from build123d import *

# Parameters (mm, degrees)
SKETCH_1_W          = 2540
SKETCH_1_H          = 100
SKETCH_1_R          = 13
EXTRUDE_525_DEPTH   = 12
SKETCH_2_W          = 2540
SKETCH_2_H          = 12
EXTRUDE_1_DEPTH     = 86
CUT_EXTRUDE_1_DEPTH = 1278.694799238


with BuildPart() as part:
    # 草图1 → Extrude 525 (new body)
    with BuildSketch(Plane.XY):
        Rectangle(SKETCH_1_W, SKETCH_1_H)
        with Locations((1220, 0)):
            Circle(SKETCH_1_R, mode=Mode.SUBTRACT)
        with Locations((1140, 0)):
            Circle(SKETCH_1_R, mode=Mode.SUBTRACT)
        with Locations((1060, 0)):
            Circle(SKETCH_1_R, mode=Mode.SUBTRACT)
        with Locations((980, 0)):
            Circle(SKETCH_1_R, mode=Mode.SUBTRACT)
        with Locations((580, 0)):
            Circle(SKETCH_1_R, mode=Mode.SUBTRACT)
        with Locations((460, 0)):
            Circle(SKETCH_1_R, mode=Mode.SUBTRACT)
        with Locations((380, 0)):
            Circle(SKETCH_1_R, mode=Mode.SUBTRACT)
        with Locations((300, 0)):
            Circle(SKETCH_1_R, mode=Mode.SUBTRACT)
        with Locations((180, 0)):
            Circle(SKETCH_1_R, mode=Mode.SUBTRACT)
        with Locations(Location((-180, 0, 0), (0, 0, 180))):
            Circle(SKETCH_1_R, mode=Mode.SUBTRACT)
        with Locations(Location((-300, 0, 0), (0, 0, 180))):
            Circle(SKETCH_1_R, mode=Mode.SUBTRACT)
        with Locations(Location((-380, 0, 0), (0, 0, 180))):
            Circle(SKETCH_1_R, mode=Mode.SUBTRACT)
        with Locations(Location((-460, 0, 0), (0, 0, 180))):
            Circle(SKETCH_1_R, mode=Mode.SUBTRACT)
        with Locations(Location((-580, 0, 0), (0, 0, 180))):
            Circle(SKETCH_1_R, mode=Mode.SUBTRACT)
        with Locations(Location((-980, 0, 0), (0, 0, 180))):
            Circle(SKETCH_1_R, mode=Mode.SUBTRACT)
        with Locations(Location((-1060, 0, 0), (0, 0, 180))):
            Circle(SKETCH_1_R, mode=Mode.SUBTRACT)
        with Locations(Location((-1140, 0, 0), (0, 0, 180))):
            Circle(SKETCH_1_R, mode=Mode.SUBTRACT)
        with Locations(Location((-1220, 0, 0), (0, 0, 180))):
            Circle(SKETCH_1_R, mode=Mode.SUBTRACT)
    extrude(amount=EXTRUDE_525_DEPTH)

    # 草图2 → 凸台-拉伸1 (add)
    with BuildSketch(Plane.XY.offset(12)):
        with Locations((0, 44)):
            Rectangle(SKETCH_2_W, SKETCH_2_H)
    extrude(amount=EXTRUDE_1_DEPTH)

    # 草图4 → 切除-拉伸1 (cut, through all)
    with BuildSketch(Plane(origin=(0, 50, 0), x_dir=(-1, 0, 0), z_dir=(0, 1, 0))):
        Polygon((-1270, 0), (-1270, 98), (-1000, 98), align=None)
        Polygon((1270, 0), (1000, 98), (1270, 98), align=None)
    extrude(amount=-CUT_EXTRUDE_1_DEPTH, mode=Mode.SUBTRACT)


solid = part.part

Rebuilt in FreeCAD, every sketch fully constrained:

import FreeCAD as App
import Part
import Sketcher

V = App.Vector


def add_polygon(sketch, points):
    """Adds a closed chain of lines whose ends are joined by coincident constraints."""
    first, n = sketch.GeometryCount, len(points)
    for a, b in zip(points, points[1:] + points[:1]):
        sketch.addGeometry(Part.LineSegment(App.Vector(*a, 0), App.Vector(*b, 0)), False)
    for i in range(n):
        sketch.addConstraint(Sketcher.Constraint("Coincident", first + i, 2, first + (i + 1) % n, 1))

doc = App.newDocument("Part")
body = doc.addObject("PartDesign::Body", "Body")

sketch1 = body.newObject("Sketcher::SketchObject", "Sketch")
sketch1.AttachmentSupport = (doc.getObject("XY_Plane"), [""])
sketch1.MapMode = "FlatFace"
add_polygon(sketch1, [(-1270, 50), (-1270, -50), (1270, -50), (1270, 50)])
sketch1.addGeometry(Part.Circle(V(-1220, 0, 0), V(0, 0, 1), 13), False)
sketch1.addGeometry(Part.Circle(V(-1140, 0, 0), V(0, 0, 1), 13), False)
sketch1.addGeometry(Part.Circle(V(-1060, 0, 0), V(0, 0, 1), 13), False)
sketch1.addGeometry(Part.Circle(V(-980, 0, 0), V(0, 0, 1), 13), False)
sketch1.addGeometry(Part.Circle(V(-580, 0, 0), V(0, 0, 1), 13), False)
sketch1.addGeometry(Part.Circle(V(-460, 0, 0), V(0, 0, 1), 13), False)
sketch1.addGeometry(Part.Circle(V(-380, 0, 0), V(0, 0, 1), 13), False)
sketch1.addGeometry(Part.Circle(V(-300, 0, 0), V(0, 0, 1), 13), False)
sketch1.addGeometry(Part.Circle(V(-180, 0, 0), V(0, 0, 1), 13), False)
sketch1.addGeometry(Part.Circle(V(180, 0, 0), V(0, 0, 1), 13), False)
sketch1.addGeometry(Part.Circle(V(300, 0, 0), V(0, 0, 1), 13), False)
sketch1.addGeometry(Part.Circle(V(380, 0, 0), V(0, 0, 1), 13), False)
sketch1.addGeometry(Part.Circle(V(460, 0, 0), V(0, 0, 1), 13), False)
sketch1.addGeometry(Part.Circle(V(580, 0, 0), V(0, 0, 1), 13), False)
sketch1.addGeometry(Part.Circle(V(980, 0, 0), V(0, 0, 1), 13), False)
sketch1.addGeometry(Part.Circle(V(1060, 0, 0), V(0, 0, 1), 13), False)
sketch1.addGeometry(Part.Circle(V(1140, 0, 0), V(0, 0, 1), 13), False)
sketch1.addGeometry(Part.Circle(V(1220, 0, 0), V(0, 0, 1), 13), False)
sketch1.addConstraint(Sketcher.Constraint("Vertical", 0))
sketch1.addConstraint(Sketcher.Constraint("Horizontal", 1))
sketch1.addConstraint(Sketcher.Constraint("Vertical", 2))
sketch1.addConstraint(Sketcher.Constraint("Horizontal", 3))
sketch1.addConstraint(Sketcher.Constraint("Equal", 4, 5))
sketch1.addConstraint(Sketcher.Constraint("Equal", 5, 6))
sketch1.addConstraint(Sketcher.Constraint("Equal", 6, 7))
sketch1.addConstraint(Sketcher.Constraint("Equal", 7, 8))
sketch1.addConstraint(Sketcher.Constraint("Equal", 8, 9))
sketch1.addConstraint(Sketcher.Constraint("Equal", 9, 10))
sketch1.addConstraint(Sketcher.Constraint("Equal", 10, 11))
sketch1.addConstraint(Sketcher.Constraint("Equal", 11, 12))
sketch1.addConstraint(Sketcher.Constraint("Equal", 12, 13))
sketch1.addConstraint(Sketcher.Constraint("Equal", 13, 14))
sketch1.addConstraint(Sketcher.Constraint("Equal", 14, 15))
sketch1.addConstraint(Sketcher.Constraint("Equal", 15, 16))
sketch1.addConstraint(Sketcher.Constraint("Equal", 16, 17))
sketch1.addConstraint(Sketcher.Constraint("Equal", 17, 18))
sketch1.addConstraint(Sketcher.Constraint("Equal", 18, 19))
sketch1.addConstraint(Sketcher.Constraint("Equal", 19, 20))
sketch1.addConstraint(Sketcher.Constraint("Equal", 20, 21))
sketch1.addConstraint(Sketcher.Constraint("Symmetric", 12, 3, 13, 3, -1, 1))
sketch1.addConstraint(Sketcher.Constraint("Symmetric", 11, 3, 14, 3, -1, 1))
sketch1.addConstraint(Sketcher.Constraint("Symmetric", 10, 3, 15, 3, -1, 1))
sketch1.addConstraint(Sketcher.Constraint("Symmetric", 9, 3, 16, 3, -1, 1))
sketch1.addConstraint(Sketcher.Constraint("Symmetric", 8, 3, 17, 3, -1, 1))
sketch1.addConstraint(Sketcher.Constraint("Symmetric", 7, 3, 18, 3, -1, 1))
sketch1.addConstraint(Sketcher.Constraint("Symmetric", 6, 3, 19, 3, -1, 1))
sketch1.addConstraint(Sketcher.Constraint("Symmetric", 5, 3, 20, 3, -1, 1))
sketch1.addConstraint(Sketcher.Constraint("Symmetric", 4, 3, 21, 3, -1, 1))
sketch1.addConstraint(Sketcher.Constraint("Symmetric", 0, 2, 2, 2, -1, 1))
sketch1.addConstraint(Sketcher.Constraint("PointOnObject", 4, 3, -1))
sketch1.addConstraint(Sketcher.Constraint("PointOnObject", 5, 3, -1))
sketch1.addConstraint(Sketcher.Constraint("PointOnObject", 6, 3, -1))
sketch1.addConstraint(Sketcher.Constraint("PointOnObject", 7, 3, -1))
sketch1.addConstraint(Sketcher.Constraint("PointOnObject", 8, 3, -1))
sketch1.addConstraint(Sketcher.Constraint("PointOnObject", 9, 3, -1))
sketch1.addConstraint(Sketcher.Constraint("PointOnObject", 10, 3, -1))
sketch1.addConstraint(Sketcher.Constraint("PointOnObject", 11, 3, -1))
sketch1.addConstraint(Sketcher.Constraint("PointOnObject", 12, 3, -1))
sketch1.addConstraint(Sketcher.Constraint("Diameter", 4, 26.0))
sketch1.addConstraint(Sketcher.Constraint("DistanceX", 1, 1, 1, 2, 2540.0))
sketch1.addConstraint(Sketcher.Constraint("DistanceY", 0, 2, 0, 1, 100.0))
sketch1.addConstraint(Sketcher.Constraint("DistanceX", 4, 3, -1, 1, 1220.0))
sketch1.addConstraint(Sketcher.Constraint("DistanceX", 5, 3, -1, 1, 1140.0))
sketch1.addConstraint(Sketcher.Constraint("DistanceX", 6, 3, -1, 1, 1060.0))
sketch1.addConstraint(Sketcher.Constraint("DistanceX", 7, 3, -1, 1, 980.0))
sketch1.addConstraint(Sketcher.Constraint("DistanceX", 8, 3, -1, 1, 580.0))
sketch1.addConstraint(Sketcher.Constraint("DistanceX", 9, 3, -1, 1, 460.0))
sketch1.addConstraint(Sketcher.Constraint("DistanceX", 10, 3, -1, 1, 380.0))
sketch1.addConstraint(Sketcher.Constraint("DistanceX", 11, 3, -1, 1, 300.0))
sketch1.addConstraint(Sketcher.Constraint("DistanceX", 12, 3, -1, 1, 180.0))
pad1 = body.newObject("PartDesign::Pad", "Pad")
pad1.Profile = sketch1
pad1.Length = 12

sketch2 = body.newObject("Sketcher::SketchObject", "Sketch001")
sketch2.AttachmentSupport = (doc.getObject("XY_Plane"), [""])
sketch2.MapMode = "FlatFace"
sketch2.AttachmentOffset = App.Placement(V(0, 0, 12), App.Rotation())
add_polygon(sketch2, [(-1270, 50), (-1270, 38), (1270, 38), (1270, 50)])
sketch2.addConstraint(Sketcher.Constraint("Vertical", 0))
sketch2.addConstraint(Sketcher.Constraint("Horizontal", 1))
sketch2.addConstraint(Sketcher.Constraint("Vertical", 2))
sketch2.addConstraint(Sketcher.Constraint("Horizontal", 3))
sketch2.addConstraint(Sketcher.Constraint("DistanceX", 1, 1, 1, 2, 2540.0))
sketch2.addConstraint(Sketcher.Constraint("DistanceY", 0, 2, 0, 1, 12.0))
sketch2.addConstraint(Sketcher.Constraint("DistanceX", 0, 2, -1, 1, 1270.0))
sketch2.addConstraint(Sketcher.Constraint("DistanceY", -1, 1, 0, 2, 38.0))
pad2 = body.newObject("PartDesign::Pad", "Pad001")
pad2.Profile = sketch2
pad2.Length = 86

sketch3 = body.newObject("Sketcher::SketchObject", "Sketch002")
sketch3.AttachmentSupport = (doc.getObject("XZ_Plane"), [""])
sketch3.MapMode = "FlatFace"
sketch3.AttachmentOffset = App.Placement(V(0, 0, -50), App.Rotation())
add_polygon(sketch3, [(1270, 98), (1270, 0), (1000, 98)])
add_polygon(sketch3, [(-1000, 98), (-1270, 0), (-1270, 98)])
sketch3.addConstraint(Sketcher.Constraint("Vertical", 0))
sketch3.addConstraint(Sketcher.Constraint("Horizontal", 2))
sketch3.addConstraint(Sketcher.Constraint("Vertical", 4))
sketch3.addConstraint(Sketcher.Constraint("Horizontal", 5))
sketch3.addConstraint(Sketcher.Constraint("Symmetric", 0, 2, 3, 2, -1, 1))
sketch3.addConstraint(Sketcher.Constraint("Symmetric", 1, 2, 5, 2, -2))
sketch3.addConstraint(Sketcher.Constraint("PointOnObject", 0, 2, -1))
sketch3.addConstraint(Sketcher.Constraint("DistanceX", 2, 1, 2, 2, 270.0))
sketch3.addConstraint(Sketcher.Constraint("DistanceY", 0, 2, 0, 1, 98.0))
sketch3.addConstraint(Sketcher.Constraint("DistanceX", -1, 1, 0, 2, 1270.0))
pocket1 = body.newObject("PartDesign::Pocket", "Pocket")
pocket1.Profile = sketch3
pocket1.Type = "ThroughAll"
pocket1.Reversed = True

doc.recompute()
